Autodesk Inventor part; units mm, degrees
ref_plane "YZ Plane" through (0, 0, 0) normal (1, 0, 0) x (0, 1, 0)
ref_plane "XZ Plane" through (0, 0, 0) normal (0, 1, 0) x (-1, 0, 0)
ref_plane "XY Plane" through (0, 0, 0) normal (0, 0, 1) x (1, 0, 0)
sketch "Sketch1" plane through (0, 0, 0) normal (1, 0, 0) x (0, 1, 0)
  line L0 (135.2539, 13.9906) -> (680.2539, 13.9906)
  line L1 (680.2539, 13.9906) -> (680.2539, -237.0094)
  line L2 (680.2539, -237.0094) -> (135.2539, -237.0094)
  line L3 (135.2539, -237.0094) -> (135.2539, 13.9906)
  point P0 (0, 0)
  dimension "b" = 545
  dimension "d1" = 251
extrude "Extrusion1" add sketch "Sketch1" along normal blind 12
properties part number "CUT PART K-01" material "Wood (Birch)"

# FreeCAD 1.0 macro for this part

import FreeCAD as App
import Part
import Sketcher
Q = App.Units.Quantity

doc = App.newDocument("Part")
body = doc.addObject("PartDesign::Body", "Body")

# Sketch on YZ plane
sketch1 = body.newObject("Sketcher::SketchObject", "Sketch")
sketch1.AttachmentSupport = (doc.getObject("YZ_Plane"), [""])
sketch1.MapMode = "FlatFace"
sketch1.addGeometry(Part.LineSegment(App.Vector(680, 14, 0), App.Vector(135, 14, 0)), False)
sketch1.addGeometry(Part.LineSegment(App.Vector(135, 14, 0), App.Vector(135, -237, 0)), False)
sketch1.addGeometry(Part.LineSegment(App.Vector(135, -237, 0), App.Vector(680, -237, 0)), False)
sketch1.addGeometry(Part.LineSegment(App.Vector(680, -237, 0), App.Vector(680, 14, 0)), False)
sketch1.addConstraint(Sketcher.Constraint("Coincident", 0, 2, 1, 1))
sketch1.addConstraint(Sketcher.Constraint("Coincident", 1, 2, 2, 1))
sketch1.addConstraint(Sketcher.Constraint("Coincident", 2, 2, 3, 1))
sketch1.addConstraint(Sketcher.Constraint("Coincident", 3, 2, 0, 1))
sketch1.addConstraint(Sketcher.Constraint("Horizontal", 0))
sketch1.addConstraint(Sketcher.Constraint("Vertical", 1))
sketch1.addConstraint(Sketcher.Constraint("Horizontal", 2))
sketch1.addConstraint(Sketcher.Constraint("Vertical", 3))
sketch1.addConstraint(Sketcher.Constraint("DistanceX", 0, 2, 0, 1, Q("545 mm")))
sketch1.addConstraint(Sketcher.Constraint("DistanceY", 1, 2, 1, 1, Q("251 mm")))
sketch1.addConstraint(Sketcher.Constraint("DistanceX", -1, 1, 0, 2, Q("135.254 mm")))
sketch1.addConstraint(Sketcher.Constraint("DistanceY", -1, 1, 0, 2, Q("13.9906 mm")))
pad1 = body.newObject("PartDesign::Pad", "Pad")
pad1.Profile = sketch1
pad1.Length = 12

doc.recompute()
